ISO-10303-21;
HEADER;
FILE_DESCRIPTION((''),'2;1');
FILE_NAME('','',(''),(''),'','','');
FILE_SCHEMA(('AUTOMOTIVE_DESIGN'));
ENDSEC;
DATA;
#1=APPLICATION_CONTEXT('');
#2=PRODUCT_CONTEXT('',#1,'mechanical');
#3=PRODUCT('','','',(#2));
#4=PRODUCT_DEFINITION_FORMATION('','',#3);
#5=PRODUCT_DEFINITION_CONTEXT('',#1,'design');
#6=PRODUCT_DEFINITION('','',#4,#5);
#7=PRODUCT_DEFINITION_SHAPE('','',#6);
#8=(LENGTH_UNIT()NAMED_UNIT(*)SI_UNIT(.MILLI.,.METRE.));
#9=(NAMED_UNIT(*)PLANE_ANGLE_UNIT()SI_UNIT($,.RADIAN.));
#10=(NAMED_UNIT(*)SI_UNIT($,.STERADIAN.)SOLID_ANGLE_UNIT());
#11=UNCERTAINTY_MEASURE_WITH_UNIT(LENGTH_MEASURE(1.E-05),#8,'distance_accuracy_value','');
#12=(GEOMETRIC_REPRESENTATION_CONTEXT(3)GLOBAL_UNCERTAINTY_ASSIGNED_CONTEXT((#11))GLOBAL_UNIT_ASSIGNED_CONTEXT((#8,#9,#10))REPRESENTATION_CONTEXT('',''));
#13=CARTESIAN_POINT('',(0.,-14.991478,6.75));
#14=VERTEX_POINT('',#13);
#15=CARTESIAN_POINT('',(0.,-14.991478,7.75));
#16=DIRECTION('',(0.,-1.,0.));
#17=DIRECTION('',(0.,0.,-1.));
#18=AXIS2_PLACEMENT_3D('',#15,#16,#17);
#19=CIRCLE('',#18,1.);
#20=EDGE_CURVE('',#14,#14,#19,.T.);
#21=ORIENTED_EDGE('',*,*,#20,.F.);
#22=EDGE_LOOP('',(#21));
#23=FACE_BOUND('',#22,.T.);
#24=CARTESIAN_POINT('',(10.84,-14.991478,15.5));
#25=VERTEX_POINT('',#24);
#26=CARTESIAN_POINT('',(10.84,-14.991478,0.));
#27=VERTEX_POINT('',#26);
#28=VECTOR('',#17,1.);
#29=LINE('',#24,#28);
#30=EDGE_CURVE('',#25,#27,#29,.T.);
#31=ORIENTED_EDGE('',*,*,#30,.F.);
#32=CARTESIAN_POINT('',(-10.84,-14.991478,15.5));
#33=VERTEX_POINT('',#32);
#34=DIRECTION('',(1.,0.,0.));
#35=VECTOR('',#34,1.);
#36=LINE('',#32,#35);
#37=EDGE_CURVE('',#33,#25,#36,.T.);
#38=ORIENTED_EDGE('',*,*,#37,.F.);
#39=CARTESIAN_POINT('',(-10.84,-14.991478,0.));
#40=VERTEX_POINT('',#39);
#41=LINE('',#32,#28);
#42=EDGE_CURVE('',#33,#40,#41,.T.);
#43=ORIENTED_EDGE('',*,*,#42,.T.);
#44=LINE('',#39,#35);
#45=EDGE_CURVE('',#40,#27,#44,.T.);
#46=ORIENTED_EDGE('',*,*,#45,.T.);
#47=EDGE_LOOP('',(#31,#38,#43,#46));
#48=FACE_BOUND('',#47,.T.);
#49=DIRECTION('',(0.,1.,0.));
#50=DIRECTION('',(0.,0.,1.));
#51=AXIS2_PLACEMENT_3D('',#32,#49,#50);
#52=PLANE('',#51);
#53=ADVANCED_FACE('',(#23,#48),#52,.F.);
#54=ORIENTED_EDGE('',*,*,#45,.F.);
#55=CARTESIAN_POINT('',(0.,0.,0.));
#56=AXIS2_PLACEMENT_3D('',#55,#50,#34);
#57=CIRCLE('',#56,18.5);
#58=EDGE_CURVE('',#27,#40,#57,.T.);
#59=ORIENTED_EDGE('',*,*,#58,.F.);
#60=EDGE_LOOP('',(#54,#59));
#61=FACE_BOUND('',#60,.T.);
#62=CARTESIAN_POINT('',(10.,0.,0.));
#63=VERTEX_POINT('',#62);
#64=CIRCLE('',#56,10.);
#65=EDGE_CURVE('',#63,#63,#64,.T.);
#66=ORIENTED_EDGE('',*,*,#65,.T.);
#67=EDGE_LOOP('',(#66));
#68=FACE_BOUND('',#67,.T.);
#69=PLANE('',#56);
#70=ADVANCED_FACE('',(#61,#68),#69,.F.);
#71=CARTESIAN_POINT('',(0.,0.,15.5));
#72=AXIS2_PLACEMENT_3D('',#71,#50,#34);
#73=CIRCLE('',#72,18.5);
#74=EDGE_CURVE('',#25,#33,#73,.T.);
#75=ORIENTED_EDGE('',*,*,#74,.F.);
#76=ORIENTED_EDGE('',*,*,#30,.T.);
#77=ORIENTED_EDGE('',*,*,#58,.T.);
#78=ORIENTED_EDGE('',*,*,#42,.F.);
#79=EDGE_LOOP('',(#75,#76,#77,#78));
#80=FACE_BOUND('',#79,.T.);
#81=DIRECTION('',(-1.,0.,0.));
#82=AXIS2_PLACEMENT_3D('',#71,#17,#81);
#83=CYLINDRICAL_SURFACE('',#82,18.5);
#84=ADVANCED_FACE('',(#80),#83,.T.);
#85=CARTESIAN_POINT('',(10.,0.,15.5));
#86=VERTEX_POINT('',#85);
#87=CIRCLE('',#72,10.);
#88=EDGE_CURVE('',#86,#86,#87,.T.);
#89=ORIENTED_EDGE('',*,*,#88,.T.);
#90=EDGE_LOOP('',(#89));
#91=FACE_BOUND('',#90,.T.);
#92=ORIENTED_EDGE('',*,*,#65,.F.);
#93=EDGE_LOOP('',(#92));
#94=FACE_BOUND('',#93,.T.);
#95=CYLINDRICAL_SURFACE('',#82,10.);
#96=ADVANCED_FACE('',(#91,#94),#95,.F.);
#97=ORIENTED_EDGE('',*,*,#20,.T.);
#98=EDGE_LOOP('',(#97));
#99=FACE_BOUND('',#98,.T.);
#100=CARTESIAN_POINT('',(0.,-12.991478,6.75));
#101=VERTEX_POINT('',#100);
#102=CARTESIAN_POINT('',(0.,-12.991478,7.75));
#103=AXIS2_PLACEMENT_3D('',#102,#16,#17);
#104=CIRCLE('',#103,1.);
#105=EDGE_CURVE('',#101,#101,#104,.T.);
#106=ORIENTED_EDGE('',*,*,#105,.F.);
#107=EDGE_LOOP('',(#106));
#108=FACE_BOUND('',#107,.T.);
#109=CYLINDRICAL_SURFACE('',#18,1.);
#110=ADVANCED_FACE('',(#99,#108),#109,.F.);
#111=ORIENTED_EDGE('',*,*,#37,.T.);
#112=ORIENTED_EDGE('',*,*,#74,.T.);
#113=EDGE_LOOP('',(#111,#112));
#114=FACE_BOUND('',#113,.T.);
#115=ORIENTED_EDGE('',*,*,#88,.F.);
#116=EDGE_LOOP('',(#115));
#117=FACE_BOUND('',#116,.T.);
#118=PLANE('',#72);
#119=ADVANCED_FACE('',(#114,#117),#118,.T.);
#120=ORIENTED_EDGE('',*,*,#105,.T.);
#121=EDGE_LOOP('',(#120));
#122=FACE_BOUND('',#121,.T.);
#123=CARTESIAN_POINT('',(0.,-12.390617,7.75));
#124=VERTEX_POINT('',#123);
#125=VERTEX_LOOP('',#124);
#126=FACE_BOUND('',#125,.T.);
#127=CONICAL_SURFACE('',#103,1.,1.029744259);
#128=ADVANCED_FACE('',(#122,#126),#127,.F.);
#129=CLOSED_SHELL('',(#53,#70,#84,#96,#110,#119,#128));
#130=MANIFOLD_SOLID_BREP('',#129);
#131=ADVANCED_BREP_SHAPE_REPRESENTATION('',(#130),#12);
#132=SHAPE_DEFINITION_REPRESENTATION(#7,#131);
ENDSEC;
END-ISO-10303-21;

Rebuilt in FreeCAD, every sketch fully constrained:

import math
import FreeCAD as App
import Part
import Sketcher
from FreeCAD import Vector
Q = App.Units.Quantity

doc = App.newDocument("Part")
body = doc.addObject("PartDesign::Body", "Body")

sketch1 = body.newObject("Sketcher::SketchObject", "Sketch")
sketch1.AttachmentSupport = (doc.getObject("XY_Plane"), [""])
sketch1.MapMode = "FlatFace"
sketch1.addGeometry([
    Part.LineSegment(Vector(-11, -15, 0), Vector(11, -15, 0)),
    Part.ArcOfCircle(Part.Circle(Vector(0, 0, 0), Vector(0, 0, 1), 18), math.radians(-54), math.radians(234)),
    Part.Circle(Vector(0, 0, 0), Vector(0, 0, 1), 10),
], False)
sketch1.addConstraint([
    Sketcher.Constraint("Coincident", 0, 1, 1, 2),
    Sketcher.Constraint("Coincident", 1, 1, 0, 2),
    Sketcher.Constraint("Horizontal", 0),
    Sketcher.Constraint("Coincident", 1, 3, -1, 1),
    Sketcher.Constraint("Coincident", 2, 3, -1, 1),
    Sketcher.Constraint("Diameter", 2, Q("20 mm")),
    Sketcher.Constraint("Radius", 1, Q("18.5 mm")),
    Sketcher.Constraint("DistanceX", 0, 1, 0, 2, Q("21.68 mm")),
])
pad1 = body.newObject("PartDesign::Pad", "Pad")
pad1.Profile = sketch1
pad1.Length = 15.5

sketch2 = body.newObject("Sketcher::SketchObject", "Sketch001")
sketch2.AttachmentSupport = (doc.getObject("XZ_Plane"), [""])
sketch2.MapMode = "FlatFace"
sketch2.AttachmentOffset = App.Placement(Vector(0, 0, 14.991478), App.Rotation())
sketch2.addGeometry(Part.Circle(Vector(0, 7.8, 0), Vector(0, 0, 1), 1), False)
sketch2.addConstraint([
    Sketcher.Constraint("PointOnObject", 0, 3, -2),
    Sketcher.Constraint("Diameter", 0, Q("2 mm")),
    Sketcher.Constraint("DistanceY", -1, 1, 0, 3, Q("7.75 mm")),
])
doc.recompute()
hole = body.newObject("PartDesign::Hole", "Hole")
hole.Profile = sketch2
hole.ThreadType = "None"
hole.Diameter = 2
hole.DepthType = "Dimension"
hole.Depth = 2
hole.DrillPoint = "Angled"
hole.DrillPointAngle = 118

doc.recompute()
